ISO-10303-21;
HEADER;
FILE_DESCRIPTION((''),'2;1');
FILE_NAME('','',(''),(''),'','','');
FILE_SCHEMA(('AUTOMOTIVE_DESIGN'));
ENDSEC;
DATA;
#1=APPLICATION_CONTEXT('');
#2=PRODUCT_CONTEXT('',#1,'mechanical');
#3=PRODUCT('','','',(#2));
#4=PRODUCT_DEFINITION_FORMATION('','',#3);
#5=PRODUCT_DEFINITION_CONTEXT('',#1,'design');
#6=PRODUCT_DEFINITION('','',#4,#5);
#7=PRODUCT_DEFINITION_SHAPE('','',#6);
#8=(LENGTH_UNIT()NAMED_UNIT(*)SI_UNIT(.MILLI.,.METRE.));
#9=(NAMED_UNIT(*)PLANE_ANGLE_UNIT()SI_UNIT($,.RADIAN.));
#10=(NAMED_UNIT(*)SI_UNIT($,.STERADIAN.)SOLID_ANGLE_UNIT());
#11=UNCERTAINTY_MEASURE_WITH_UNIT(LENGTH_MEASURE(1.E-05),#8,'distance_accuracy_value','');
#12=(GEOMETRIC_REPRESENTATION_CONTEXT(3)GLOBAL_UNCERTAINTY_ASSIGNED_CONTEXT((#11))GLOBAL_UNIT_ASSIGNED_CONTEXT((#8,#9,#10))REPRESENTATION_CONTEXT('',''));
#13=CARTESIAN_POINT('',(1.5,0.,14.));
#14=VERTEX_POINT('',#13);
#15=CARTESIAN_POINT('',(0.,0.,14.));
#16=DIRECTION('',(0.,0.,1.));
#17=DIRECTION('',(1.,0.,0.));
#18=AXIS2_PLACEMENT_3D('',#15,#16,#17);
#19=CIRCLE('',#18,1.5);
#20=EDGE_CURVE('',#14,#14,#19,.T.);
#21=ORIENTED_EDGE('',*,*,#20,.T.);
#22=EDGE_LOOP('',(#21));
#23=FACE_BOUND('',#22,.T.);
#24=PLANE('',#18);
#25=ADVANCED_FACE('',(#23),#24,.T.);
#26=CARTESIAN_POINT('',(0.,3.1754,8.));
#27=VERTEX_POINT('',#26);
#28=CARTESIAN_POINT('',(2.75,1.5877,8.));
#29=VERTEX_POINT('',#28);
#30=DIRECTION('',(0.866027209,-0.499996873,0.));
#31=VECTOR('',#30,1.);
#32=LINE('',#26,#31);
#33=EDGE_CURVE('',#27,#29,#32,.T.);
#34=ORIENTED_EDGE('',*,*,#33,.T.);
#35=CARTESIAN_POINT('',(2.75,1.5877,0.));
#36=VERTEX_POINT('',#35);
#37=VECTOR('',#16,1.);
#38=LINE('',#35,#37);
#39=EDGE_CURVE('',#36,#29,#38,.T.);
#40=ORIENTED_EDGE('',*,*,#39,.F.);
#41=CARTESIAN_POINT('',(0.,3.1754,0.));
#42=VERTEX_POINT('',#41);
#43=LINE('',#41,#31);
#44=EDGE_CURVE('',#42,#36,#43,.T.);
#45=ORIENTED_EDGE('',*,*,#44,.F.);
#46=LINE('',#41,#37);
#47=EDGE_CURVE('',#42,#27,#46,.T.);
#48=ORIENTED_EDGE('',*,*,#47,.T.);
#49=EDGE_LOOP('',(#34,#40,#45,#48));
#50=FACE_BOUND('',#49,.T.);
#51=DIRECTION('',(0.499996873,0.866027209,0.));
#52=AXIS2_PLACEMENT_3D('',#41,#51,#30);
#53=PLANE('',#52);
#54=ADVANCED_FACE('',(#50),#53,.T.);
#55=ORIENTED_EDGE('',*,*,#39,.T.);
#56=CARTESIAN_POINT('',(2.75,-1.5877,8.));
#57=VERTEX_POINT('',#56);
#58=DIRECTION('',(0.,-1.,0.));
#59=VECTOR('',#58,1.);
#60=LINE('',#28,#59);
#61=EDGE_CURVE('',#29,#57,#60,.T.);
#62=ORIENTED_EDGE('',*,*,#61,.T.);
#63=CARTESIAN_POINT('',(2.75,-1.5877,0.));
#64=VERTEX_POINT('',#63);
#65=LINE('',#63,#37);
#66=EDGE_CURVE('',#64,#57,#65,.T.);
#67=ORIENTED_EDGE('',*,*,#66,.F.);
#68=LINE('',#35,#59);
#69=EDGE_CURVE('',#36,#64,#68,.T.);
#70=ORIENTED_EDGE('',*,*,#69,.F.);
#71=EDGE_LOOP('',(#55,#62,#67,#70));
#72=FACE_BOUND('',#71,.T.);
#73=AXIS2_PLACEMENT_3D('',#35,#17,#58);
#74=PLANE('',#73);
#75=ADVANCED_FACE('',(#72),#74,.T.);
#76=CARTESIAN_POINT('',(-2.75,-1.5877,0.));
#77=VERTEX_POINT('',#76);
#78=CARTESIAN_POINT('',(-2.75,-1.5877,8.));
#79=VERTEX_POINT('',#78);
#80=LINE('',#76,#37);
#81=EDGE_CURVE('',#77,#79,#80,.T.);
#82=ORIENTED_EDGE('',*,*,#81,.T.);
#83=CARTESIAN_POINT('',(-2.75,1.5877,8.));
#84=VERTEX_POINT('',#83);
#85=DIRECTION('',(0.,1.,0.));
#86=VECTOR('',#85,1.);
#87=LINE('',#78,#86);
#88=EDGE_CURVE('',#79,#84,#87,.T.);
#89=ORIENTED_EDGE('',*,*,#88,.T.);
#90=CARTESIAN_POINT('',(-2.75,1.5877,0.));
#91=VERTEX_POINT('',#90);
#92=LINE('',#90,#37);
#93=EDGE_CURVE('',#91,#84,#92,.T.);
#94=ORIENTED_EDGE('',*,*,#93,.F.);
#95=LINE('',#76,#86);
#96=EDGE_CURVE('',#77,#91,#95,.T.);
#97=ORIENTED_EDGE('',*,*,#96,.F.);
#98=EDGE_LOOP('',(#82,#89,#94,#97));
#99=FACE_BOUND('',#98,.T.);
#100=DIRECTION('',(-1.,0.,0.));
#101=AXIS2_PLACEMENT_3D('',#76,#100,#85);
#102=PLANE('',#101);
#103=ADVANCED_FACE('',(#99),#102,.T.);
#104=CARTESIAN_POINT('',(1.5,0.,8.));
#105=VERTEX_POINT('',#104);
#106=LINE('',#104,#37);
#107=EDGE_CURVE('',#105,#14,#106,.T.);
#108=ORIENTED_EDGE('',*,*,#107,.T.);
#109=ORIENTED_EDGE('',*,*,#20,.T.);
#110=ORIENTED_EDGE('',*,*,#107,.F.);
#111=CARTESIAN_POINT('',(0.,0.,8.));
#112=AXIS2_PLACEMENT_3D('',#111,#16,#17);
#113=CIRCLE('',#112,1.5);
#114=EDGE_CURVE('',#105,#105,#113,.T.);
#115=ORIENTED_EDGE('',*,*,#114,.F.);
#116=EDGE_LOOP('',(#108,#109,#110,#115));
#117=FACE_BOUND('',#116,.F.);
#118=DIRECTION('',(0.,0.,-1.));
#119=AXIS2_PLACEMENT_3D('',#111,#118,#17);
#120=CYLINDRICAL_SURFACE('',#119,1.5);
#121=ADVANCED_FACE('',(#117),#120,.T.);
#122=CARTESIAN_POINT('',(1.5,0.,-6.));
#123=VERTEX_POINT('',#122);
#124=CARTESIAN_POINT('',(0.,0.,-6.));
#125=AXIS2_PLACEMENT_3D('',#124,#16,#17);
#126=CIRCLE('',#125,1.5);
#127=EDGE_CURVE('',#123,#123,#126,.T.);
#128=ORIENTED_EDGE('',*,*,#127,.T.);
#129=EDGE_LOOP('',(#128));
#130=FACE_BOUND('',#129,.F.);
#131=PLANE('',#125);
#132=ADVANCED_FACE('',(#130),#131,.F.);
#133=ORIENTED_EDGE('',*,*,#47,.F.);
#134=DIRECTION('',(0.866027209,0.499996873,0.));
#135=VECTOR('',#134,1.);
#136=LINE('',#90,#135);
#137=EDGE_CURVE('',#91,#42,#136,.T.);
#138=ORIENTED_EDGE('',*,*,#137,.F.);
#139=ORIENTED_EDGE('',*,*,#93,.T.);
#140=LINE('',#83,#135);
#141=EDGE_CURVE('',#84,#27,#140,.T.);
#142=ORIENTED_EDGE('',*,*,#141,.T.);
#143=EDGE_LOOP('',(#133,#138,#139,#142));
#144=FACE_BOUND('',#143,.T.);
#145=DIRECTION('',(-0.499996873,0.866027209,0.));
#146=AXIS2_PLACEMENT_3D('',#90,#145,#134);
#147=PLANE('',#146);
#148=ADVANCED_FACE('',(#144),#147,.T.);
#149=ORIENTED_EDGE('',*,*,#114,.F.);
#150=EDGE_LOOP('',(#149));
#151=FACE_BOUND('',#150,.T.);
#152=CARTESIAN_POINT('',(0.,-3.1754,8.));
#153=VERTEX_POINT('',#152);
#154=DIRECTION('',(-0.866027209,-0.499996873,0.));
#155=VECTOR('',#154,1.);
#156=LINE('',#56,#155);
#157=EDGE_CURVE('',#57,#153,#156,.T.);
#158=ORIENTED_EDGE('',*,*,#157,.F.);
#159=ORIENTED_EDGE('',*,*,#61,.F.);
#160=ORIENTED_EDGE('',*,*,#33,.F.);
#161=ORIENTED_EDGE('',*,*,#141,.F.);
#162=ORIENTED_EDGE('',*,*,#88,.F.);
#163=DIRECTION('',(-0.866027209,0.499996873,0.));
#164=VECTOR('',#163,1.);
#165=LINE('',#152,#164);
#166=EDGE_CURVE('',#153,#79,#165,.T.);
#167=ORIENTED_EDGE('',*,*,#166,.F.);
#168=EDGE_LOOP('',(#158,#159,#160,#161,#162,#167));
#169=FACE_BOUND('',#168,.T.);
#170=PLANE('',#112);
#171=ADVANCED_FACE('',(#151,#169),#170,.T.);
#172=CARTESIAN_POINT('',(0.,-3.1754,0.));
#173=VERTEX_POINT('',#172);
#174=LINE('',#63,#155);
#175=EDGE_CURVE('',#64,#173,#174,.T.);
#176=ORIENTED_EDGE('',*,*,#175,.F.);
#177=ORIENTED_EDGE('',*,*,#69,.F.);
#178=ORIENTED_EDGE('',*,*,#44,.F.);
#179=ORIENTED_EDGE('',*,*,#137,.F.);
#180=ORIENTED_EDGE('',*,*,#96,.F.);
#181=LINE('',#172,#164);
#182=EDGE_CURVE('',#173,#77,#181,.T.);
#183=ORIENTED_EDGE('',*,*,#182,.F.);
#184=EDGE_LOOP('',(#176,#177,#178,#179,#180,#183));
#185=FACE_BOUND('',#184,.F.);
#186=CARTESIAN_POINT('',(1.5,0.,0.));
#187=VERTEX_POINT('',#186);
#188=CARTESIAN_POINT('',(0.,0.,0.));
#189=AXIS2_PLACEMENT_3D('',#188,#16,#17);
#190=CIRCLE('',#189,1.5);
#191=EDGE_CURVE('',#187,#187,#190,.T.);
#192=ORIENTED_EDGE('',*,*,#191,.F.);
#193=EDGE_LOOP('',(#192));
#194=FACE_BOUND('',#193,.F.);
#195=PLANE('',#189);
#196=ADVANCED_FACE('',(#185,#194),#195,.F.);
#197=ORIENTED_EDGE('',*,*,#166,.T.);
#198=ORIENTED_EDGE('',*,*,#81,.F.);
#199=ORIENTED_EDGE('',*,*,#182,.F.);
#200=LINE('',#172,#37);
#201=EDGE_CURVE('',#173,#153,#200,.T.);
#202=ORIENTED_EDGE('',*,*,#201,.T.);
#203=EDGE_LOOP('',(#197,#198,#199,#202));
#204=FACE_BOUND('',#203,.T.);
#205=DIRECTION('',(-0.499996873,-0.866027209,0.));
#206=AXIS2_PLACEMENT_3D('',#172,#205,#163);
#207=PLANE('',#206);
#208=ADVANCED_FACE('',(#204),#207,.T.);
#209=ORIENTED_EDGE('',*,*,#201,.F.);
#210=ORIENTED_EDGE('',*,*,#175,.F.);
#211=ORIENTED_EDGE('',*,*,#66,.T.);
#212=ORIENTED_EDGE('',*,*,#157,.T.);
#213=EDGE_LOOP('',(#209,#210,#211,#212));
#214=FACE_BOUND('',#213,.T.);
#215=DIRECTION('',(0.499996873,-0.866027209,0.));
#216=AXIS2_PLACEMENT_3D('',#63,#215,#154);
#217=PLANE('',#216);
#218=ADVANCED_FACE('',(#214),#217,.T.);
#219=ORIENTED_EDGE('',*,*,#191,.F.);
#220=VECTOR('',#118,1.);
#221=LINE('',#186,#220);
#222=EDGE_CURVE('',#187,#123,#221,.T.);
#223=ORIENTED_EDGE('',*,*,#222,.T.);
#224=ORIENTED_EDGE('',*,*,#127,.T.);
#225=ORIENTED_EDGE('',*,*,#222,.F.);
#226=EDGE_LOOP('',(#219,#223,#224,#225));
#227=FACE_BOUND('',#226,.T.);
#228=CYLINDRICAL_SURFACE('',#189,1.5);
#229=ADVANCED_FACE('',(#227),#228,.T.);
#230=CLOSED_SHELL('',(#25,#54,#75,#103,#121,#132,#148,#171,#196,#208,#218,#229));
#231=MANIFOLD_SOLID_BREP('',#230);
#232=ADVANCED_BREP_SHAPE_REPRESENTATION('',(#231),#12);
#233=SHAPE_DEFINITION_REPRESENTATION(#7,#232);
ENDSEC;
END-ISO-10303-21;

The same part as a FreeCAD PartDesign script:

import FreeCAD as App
import Part
import Sketcher
from FreeCAD import Vector
Q = App.Units.Quantity

doc = App.newDocument("Part")
body = doc.addObject("PartDesign::Body", "Body")

sketch1 = body.newObject("Sketcher::SketchObject", "Sketch")
sketch1.AttachmentSupport = (doc.getObject("XY_Plane"), [""])
sketch1.MapMode = "FlatFace"
sketch1.addGeometry([
    Part.LineSegment(Vector(0, 3.2, 0), Vector(-2.8, 1.6, 0)),
    Part.LineSegment(Vector(-2.8, 1.6, 0), Vector(-2.8, -1.6, 0)),
    Part.LineSegment(Vector(-2.8, -1.6, 0), Vector(0, -3.2, 0)),
    Part.LineSegment(Vector(0, -3.2, 0), Vector(2.8, -1.6, 0)),
    Part.LineSegment(Vector(2.8, -1.6, 0), Vector(2.8, 1.6, 0)),
    Part.LineSegment(Vector(2.8, 1.6, 0), Vector(0, 3.2, 0)),
], False)
sketch1.addConstraint([
    Sketcher.Constraint("Coincident", 0, 2, 1, 1),
    Sketcher.Constraint("Coincident", 1, 2, 2, 1),
    Sketcher.Constraint("Coincident", 2, 2, 3, 1),
    Sketcher.Constraint("Coincident", 3, 2, 4, 1),
    Sketcher.Constraint("Coincident", 4, 2, 5, 1),
    Sketcher.Constraint("Coincident", 5, 2, 0, 1),
    Sketcher.Constraint("Vertical", 1),
    Sketcher.Constraint("Vertical", 4),
    Sketcher.Constraint("Symmetric", 0, 2, 3, 2, -1, 1),
    Sketcher.Constraint("Symmetric", 2, 2, 5, 2, -1, 1),
    Sketcher.Constraint("PointOnObject", 2, 2, -2),
    Sketcher.Constraint("Parallel", 2, 5),
    Sketcher.Constraint("Horizontal", 1, 2, 3, 2),
    Sketcher.Constraint("DistanceX", 1, 2, 3, 2, 5.5),
    Sketcher.Constraint("Angle", 0, Q("-150.0002 deg")),
    Sketcher.Constraint("DistanceY", 1, 2, 1, 1, 3.1754),
])
pad1 = body.newObject("PartDesign::Pad", "Pad")
pad1.Profile = sketch1
pad1.Length = 8

sketch2 = body.newObject("Sketcher::SketchObject", "Sketch001")
sketch2.AttachmentSupport = (doc.getObject("XY_Plane"), [""])
sketch2.MapMode = "FlatFace"
sketch2.AttachmentOffset = App.Placement(Vector(0, 0, 8), App.Rotation())
sketch2.addGeometry(Part.Circle(Vector(0, 0, 0), Vector(0, 0, 1), 1.5), False)
sketch2.addConstraint([
    Sketcher.Constraint("Coincident", 0, 3, -1, 1),
    Sketcher.Constraint("Diameter", 0, 3.0),
])
pad2 = body.newObject("PartDesign::Pad", "Pad001")
pad2.Profile = sketch2
pad2.Length = 6

sketch3 = body.newObject("Sketcher::SketchObject", "Sketch002")
sketch3.AttachmentSupport = (doc.getObject("XY_Plane"), [""])
sketch3.MapMode = "FlatFace"
sketch3.addGeometry(Part.Circle(Vector(0, 0, 0), Vector(0, 0, 1), 1.5), False)
sketch3.addConstraint([
    Sketcher.Constraint("Coincident", 0, 3, -1, 1),
    Sketcher.Constraint("Diameter", 0, 3.0),
])
pad3 = body.newObject("PartDesign::Pad", "Pad002")
pad3.Profile = sketch3
pad3.Length = 6
pad3.Reversed = True

doc.recompute()
